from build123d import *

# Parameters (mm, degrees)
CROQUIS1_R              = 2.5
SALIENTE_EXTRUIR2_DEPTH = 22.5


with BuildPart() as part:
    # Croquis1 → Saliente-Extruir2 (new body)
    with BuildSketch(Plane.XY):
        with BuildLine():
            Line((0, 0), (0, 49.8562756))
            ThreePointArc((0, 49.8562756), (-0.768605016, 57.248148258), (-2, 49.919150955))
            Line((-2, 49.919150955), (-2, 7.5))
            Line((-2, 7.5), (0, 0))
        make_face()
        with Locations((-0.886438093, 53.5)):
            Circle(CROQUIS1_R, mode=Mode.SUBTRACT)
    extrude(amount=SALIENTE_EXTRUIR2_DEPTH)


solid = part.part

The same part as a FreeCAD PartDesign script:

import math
import FreeCAD as App
import Part
import Sketcher

V = App.Vector
Q = App.Units.Quantity

doc = App.newDocument("Part")
body = doc.addObject("PartDesign::Body", "Body")

# Sketch on XY plane
sketch1 = body.newObject("Sketcher::SketchObject", "Sketch")
sketch1.AttachmentSupport = (doc.getObject("XY_Plane"), [""])
sketch1.MapMode = "FlatFace"
sketch1.addGeometry([
    Part.LineSegment(V(0, 0, 0), V(0, 49.9, 0)),  # 0
    Part.ArcOfCircle(Part.Circle(V(-0.9, 53.5, 0), V(0, 0, 1), 3.8), math.radians(-76), math.radians(253)),  # 1
    Part.LineSegment(V(-2, 49.9, 0), V(-2, 7.5, 0)),  # 2
    Part.LineSegment(V(-2, 7.5, 0), V(0, 0, 0)),  # 3
    Part.Circle(V(-0.9, 53.5, 0), V(0, 0, 1), 2.5),  # 4
], False)
sketch1.addConstraint([
    Sketcher.Constraint("Coincident", 0, 2, 1, 1),
    Sketcher.Constraint("Coincident", 1, 2, 2, 1),
    Sketcher.Constraint("Coincident", 2, 2, 3, 1),
    Sketcher.Constraint("Coincident", 3, 2, 0, 1),
    Sketcher.Constraint("Vertical", 0),
    Sketcher.Constraint("Vertical", 2),
    Sketcher.Constraint("Coincident", 3, 2, -1, 1),
    Sketcher.Constraint("Coincident", 4, 3, 1, 3),
    Sketcher.Constraint("Diameter", 4, Q("5 mm")),
    Sketcher.Constraint("Radius", 1, Q("3.75 mm")),
    Sketcher.Constraint("DistanceX", 1, 2, -1, 1, Q("2 mm")),
    Sketcher.Constraint("DistanceY", 2, 2, 1, 3, Q("46 mm")),
    Sketcher.Constraint("DistanceY", -1, 1, 1, 3, Q("53.5 mm")),
    Sketcher.Constraint("DistanceY", 2, 2, 2, 1, Q("42.419151 mm")),
])
pad1 = body.newObject("PartDesign::Pad", "Pad")
pad1.Profile = sketch1
pad1.Length = 22.5

doc.recompute()
